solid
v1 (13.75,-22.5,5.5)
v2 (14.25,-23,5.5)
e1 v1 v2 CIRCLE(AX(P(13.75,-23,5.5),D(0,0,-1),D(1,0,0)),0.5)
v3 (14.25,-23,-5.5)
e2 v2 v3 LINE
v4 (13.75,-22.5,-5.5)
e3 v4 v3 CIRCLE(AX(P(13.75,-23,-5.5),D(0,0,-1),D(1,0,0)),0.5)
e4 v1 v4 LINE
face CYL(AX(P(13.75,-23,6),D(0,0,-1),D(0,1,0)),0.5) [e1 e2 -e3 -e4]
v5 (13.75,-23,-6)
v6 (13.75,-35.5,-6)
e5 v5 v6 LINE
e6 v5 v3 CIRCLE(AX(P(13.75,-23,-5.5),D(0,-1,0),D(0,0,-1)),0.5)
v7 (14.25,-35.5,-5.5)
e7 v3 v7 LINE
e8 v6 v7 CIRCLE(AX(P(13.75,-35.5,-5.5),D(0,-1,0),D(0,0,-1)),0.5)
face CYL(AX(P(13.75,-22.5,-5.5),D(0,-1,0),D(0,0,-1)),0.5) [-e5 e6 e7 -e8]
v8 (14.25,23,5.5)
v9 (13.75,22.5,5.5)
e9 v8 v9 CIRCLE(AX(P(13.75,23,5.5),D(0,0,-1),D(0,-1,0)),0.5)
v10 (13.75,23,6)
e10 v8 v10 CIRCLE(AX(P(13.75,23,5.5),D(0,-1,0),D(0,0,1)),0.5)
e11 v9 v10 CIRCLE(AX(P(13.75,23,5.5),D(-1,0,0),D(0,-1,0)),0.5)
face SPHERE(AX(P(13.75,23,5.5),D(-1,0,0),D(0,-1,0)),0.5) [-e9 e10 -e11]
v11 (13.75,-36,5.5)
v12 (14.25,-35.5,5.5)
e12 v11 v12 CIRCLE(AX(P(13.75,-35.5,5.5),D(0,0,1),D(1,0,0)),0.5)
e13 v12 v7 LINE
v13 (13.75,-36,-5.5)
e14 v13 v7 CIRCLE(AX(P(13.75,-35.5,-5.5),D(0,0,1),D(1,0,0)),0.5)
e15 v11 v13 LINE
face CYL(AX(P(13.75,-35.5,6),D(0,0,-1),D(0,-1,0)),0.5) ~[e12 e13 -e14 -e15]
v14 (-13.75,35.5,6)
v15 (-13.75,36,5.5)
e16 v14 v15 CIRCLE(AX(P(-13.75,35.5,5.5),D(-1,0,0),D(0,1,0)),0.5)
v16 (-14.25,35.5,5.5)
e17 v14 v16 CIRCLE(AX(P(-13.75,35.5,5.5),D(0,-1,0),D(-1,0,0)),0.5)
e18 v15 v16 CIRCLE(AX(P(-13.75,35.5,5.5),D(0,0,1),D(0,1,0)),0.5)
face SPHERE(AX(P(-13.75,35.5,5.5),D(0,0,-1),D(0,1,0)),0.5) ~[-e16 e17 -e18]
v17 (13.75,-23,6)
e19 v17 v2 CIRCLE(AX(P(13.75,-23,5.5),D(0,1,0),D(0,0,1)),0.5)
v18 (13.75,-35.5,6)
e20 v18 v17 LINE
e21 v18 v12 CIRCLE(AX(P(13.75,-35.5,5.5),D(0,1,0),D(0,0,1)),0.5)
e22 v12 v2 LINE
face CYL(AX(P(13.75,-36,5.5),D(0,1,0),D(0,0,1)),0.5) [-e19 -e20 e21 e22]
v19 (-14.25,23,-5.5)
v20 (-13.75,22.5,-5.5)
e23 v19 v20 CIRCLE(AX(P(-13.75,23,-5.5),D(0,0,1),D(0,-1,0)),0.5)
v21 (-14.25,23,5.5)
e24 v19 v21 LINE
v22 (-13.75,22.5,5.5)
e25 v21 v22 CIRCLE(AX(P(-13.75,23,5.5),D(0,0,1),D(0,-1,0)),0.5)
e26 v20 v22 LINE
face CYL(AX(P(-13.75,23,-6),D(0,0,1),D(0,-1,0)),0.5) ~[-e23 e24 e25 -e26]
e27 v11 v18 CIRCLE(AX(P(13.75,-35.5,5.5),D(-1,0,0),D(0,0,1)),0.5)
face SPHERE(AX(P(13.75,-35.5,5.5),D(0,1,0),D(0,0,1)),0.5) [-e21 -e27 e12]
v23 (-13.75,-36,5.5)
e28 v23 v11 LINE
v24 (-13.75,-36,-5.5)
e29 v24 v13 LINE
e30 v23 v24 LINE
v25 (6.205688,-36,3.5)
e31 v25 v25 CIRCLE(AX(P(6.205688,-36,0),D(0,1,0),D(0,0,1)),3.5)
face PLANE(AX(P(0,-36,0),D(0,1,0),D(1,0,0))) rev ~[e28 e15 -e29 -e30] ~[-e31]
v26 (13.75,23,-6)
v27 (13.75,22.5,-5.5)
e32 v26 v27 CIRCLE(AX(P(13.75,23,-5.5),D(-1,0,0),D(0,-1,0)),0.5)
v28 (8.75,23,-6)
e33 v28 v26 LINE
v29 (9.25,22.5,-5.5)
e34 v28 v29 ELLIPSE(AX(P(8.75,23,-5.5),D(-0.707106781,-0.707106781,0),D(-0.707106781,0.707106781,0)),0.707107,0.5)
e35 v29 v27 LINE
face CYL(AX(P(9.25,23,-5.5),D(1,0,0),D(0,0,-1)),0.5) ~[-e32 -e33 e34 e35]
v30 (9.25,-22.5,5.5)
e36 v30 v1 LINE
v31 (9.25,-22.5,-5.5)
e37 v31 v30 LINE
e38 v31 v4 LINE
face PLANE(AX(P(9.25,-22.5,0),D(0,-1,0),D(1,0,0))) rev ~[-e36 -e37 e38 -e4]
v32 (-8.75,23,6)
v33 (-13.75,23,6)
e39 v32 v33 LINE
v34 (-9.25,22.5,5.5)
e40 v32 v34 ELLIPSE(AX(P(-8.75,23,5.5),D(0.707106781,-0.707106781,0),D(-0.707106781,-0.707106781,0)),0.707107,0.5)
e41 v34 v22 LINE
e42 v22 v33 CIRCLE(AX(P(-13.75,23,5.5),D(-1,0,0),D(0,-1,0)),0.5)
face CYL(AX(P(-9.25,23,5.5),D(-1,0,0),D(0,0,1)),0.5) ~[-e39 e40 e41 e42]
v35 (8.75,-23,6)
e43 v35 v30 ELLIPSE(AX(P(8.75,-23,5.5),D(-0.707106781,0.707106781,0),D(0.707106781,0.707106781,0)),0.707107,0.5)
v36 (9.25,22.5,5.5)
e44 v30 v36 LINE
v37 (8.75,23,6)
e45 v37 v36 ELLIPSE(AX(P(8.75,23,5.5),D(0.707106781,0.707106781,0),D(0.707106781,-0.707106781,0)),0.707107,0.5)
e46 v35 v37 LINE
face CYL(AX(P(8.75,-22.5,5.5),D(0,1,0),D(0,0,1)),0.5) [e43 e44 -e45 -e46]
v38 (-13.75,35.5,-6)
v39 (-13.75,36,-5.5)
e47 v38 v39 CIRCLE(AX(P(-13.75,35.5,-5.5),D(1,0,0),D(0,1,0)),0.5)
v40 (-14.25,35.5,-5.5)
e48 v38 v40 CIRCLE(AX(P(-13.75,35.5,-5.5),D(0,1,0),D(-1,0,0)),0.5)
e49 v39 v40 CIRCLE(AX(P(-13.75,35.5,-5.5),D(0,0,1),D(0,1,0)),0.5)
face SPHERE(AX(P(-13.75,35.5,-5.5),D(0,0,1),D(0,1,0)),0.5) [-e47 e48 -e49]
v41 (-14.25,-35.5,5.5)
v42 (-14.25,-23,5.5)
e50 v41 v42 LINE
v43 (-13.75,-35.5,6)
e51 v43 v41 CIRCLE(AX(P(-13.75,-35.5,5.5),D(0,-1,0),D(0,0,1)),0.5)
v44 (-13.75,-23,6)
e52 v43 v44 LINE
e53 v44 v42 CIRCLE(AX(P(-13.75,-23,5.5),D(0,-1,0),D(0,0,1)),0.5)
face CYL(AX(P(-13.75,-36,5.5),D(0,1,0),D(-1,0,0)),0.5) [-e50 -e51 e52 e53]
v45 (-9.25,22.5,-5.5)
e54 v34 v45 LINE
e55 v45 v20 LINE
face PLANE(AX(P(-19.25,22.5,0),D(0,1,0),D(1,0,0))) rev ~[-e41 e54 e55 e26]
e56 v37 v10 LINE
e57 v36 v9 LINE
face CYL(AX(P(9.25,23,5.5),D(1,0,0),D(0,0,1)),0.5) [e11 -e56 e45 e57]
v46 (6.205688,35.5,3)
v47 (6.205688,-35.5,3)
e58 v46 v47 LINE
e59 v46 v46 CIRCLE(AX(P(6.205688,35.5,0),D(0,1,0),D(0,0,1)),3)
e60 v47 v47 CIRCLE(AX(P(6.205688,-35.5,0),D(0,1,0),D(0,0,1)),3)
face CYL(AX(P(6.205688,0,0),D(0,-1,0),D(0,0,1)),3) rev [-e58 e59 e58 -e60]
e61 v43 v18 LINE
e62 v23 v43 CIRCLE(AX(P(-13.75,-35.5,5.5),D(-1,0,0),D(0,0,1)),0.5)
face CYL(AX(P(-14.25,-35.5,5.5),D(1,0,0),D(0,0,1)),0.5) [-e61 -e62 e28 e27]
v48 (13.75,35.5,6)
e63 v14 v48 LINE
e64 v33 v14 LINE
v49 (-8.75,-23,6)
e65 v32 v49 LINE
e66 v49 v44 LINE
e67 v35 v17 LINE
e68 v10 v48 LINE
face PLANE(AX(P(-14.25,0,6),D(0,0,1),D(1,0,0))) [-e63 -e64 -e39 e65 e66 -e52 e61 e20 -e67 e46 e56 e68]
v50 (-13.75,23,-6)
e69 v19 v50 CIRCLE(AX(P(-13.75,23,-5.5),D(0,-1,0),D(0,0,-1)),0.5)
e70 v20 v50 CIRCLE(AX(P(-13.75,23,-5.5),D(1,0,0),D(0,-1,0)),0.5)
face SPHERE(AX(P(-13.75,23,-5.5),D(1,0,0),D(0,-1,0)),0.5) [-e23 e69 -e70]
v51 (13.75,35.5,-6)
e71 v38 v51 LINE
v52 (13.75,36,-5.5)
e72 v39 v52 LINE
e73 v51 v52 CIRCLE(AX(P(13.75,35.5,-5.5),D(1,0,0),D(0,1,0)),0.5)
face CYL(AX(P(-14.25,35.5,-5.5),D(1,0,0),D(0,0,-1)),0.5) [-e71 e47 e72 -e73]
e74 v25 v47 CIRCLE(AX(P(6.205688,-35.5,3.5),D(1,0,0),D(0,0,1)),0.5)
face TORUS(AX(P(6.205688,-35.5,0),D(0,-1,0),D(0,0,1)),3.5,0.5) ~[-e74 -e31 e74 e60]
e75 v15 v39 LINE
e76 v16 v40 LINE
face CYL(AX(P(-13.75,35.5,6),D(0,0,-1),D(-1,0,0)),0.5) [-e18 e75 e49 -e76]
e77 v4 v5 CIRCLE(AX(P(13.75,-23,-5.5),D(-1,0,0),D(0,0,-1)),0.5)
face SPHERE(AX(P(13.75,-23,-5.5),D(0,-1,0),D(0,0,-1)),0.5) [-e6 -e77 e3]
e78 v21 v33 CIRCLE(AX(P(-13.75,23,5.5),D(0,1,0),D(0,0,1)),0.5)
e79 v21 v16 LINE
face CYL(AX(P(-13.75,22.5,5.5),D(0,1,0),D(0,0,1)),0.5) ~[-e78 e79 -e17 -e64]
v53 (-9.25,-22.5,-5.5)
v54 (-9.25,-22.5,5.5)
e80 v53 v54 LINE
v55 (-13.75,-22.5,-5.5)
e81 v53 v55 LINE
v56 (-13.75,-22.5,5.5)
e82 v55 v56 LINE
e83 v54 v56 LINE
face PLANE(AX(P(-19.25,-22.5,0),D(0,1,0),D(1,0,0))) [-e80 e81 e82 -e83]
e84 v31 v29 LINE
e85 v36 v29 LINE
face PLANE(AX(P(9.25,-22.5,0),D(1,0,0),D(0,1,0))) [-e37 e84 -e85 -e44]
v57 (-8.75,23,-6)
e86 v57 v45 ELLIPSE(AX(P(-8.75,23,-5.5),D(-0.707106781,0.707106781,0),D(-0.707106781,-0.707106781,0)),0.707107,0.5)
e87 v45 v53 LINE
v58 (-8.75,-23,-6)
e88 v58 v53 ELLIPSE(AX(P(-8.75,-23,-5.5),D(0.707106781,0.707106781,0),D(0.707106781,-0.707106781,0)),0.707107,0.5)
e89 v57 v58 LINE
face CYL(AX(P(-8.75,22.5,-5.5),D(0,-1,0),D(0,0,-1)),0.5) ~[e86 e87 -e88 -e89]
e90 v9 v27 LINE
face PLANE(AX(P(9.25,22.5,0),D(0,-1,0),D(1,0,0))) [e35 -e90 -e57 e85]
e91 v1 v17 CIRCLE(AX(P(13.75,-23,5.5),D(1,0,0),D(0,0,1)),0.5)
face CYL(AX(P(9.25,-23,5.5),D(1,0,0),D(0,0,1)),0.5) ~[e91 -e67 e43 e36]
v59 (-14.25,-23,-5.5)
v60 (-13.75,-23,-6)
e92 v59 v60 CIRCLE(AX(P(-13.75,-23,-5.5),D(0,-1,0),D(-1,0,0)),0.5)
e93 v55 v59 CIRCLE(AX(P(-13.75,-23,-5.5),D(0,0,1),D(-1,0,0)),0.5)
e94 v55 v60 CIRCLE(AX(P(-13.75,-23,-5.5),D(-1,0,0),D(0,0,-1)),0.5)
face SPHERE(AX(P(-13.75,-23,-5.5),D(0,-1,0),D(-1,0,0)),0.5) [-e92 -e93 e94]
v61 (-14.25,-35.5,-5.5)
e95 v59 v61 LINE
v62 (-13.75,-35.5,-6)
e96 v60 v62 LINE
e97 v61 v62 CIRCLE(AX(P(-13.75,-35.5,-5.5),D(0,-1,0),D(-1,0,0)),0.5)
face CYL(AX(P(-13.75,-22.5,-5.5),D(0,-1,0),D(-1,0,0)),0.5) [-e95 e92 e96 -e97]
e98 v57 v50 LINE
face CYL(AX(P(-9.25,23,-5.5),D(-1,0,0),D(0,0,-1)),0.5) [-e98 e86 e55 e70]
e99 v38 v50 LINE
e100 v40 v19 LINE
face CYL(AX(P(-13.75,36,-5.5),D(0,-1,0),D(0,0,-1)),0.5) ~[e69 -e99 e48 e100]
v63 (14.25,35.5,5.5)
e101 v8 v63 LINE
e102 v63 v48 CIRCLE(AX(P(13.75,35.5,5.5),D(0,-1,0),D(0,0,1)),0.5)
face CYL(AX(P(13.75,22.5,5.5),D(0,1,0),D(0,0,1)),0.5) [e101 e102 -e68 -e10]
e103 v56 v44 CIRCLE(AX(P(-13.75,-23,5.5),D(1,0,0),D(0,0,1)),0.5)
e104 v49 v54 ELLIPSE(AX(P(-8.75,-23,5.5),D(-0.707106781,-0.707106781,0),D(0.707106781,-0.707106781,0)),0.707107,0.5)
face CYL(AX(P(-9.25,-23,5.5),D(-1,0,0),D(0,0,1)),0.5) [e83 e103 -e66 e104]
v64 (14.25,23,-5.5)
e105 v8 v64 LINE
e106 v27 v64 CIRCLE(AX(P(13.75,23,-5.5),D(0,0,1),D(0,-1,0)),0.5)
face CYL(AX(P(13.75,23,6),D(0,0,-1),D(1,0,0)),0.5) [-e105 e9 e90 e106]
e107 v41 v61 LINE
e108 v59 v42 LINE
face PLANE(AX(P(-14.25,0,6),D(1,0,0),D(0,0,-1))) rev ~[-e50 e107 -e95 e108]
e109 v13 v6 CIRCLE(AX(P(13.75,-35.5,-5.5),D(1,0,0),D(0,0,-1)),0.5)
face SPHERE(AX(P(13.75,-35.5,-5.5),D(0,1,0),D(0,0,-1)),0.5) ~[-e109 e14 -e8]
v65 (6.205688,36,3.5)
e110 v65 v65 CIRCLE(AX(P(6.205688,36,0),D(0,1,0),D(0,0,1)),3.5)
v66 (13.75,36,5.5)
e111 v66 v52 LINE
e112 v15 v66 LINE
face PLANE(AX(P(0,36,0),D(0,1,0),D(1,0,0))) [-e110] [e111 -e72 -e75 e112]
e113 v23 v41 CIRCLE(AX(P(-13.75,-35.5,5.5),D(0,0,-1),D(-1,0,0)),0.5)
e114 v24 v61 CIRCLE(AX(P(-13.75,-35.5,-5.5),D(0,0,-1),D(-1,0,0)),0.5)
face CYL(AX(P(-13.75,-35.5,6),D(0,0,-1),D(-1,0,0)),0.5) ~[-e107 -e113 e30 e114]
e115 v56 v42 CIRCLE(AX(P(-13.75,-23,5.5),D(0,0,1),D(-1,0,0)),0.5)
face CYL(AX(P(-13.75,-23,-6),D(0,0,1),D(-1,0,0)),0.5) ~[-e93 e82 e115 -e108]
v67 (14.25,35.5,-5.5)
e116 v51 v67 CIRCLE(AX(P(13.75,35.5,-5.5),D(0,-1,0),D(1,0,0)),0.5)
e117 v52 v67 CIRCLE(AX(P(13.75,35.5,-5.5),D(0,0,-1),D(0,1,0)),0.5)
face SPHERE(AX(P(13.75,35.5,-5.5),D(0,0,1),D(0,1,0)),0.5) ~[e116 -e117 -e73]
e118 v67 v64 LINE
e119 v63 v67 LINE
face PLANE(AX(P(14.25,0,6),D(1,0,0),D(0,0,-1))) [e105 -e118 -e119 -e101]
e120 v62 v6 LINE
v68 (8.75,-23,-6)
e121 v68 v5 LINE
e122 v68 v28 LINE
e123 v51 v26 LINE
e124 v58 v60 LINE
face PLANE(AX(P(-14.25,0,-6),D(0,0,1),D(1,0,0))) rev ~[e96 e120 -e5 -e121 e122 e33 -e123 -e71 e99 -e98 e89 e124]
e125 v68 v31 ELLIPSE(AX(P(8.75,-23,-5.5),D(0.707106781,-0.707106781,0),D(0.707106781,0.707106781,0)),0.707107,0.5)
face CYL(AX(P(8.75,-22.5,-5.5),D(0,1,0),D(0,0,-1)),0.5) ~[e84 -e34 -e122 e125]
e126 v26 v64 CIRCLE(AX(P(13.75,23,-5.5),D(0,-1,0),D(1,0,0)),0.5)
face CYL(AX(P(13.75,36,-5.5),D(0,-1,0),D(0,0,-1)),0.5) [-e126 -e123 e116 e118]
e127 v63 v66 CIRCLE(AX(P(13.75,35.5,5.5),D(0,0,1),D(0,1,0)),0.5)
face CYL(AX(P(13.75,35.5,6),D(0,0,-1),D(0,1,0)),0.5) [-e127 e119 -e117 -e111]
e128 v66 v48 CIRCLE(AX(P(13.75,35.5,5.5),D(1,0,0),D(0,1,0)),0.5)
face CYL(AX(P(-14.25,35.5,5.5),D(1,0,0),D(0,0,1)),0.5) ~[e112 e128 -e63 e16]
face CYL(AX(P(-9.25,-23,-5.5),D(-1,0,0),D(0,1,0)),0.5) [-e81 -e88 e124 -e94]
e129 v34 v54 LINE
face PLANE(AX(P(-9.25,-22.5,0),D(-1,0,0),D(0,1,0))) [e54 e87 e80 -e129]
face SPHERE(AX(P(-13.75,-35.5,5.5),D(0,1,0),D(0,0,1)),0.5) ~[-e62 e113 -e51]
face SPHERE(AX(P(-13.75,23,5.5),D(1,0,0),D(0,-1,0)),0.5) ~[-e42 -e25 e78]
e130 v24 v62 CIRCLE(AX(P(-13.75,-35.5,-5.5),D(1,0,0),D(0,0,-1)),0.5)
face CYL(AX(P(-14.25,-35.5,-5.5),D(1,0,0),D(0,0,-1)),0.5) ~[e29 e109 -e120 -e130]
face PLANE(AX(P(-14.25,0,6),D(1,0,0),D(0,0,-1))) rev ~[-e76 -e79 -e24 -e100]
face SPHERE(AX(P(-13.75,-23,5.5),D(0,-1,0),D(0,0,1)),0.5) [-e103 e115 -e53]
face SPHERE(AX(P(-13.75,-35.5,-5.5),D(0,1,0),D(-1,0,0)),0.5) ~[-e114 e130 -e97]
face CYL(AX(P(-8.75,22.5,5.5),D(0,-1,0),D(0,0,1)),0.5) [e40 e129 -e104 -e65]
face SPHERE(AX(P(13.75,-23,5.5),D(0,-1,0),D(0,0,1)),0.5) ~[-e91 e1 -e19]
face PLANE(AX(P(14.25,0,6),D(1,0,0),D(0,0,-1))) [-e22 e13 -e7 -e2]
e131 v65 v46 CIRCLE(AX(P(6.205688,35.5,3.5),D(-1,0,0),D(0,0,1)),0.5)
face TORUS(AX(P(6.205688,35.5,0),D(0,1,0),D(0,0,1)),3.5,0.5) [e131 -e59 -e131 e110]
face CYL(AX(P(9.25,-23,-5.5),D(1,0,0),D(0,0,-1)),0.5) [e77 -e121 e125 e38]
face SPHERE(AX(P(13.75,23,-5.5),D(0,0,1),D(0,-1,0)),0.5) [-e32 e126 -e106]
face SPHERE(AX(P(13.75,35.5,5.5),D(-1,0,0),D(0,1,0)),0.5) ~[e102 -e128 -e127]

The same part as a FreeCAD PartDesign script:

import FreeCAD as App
import Part
import Sketcher

V = App.Vector


def edges_at(feature, points):
    """Names of the edges that pass closest to the given points."""
    edges = feature.Shape.Edges
    near = lambda p: min(range(len(edges)), key=lambda i: edges[i].distToShape(Part.Vertex(*p))[0])
    return sorted({f"Edge{near(p) + 1}" for p in points})

doc = App.newDocument("Part")
params = doc.addObject("Spreadsheet::Sheet", "Params")
for row, (alias, value) in enumerate([
    ("sketch1_diameter", "6 mm"),
    ("sketch1_height", "12 mm"),
    ("sketch1_width", "28.5 mm"),
    ("pad1_length", "72 mm"),
    ("sketch2_width", "10 mm"),
    ("sketch2_height", "45 mm"),
    ("pocket1_length", "20 mm"),
    ("fillet_radius", "0.5 mm"),
], start=1):
    params.set(f"A{row}", alias)
    params.set(f"B{row}", "=" + value)
    params.setAlias(f"B{row}", alias)

body = doc.addObject("PartDesign::Body", "Body")

# Sketch on XZ plane
sketch1 = body.newObject("Sketcher::SketchObject", "Sketch")
sketch1.AttachmentSupport = (doc.getObject("XZ_Plane"), [""])
sketch1.MapMode = "FlatFace"
sketch1.addGeometry([
    Part.LineSegment(V(-14.2, -6, 0), V(-14.2, 6, 0)),  # 0
    Part.LineSegment(V(-14.2, 6, 0), V(14.2, 6, 0)),  # 1
    Part.LineSegment(V(14.2, 6, 0), V(14.2, -6, 0)),  # 2
    Part.LineSegment(V(14.2, -6, 0), V(-14.2, -6, 0)),  # 3
    Part.Circle(V(6.2, 0, 0), V(0, 0, 1), 3),  # 4
], False)
sketch1.addConstraint([
    Sketcher.Constraint("Coincident", 0, 2, 1, 1),
    Sketcher.Constraint("Coincident", 1, 2, 2, 1),
    Sketcher.Constraint("Coincident", 2, 2, 3, 1),
    Sketcher.Constraint("Coincident", 3, 2, 0, 1),
    Sketcher.Constraint("Vertical", 0),
    Sketcher.Constraint("Horizontal", 1),
    Sketcher.Constraint("Vertical", 2),
    Sketcher.Constraint("Horizontal", 3),
    Sketcher.Constraint("Symmetric", 0, 2, 2, 2, -1, 1),
    Sketcher.Constraint("PointOnObject", 4, 3, -1),
    Sketcher.Constraint("Diameter", 4, 6.0),
    Sketcher.Constraint("DistanceY", 0, 1, 0, 2, 12.0),
    Sketcher.Constraint("DistanceX", 1, 1, 1, 2, 28.5),
    Sketcher.Constraint("DistanceX", -1, 1, 4, 3, 6.205688),
])
sketch1.setExpression("Constraints[10]", "Params.sketch1_diameter")
sketch1.setExpression("Constraints[11]", "Params.sketch1_height")
sketch1.setExpression("Constraints[12]", "Params.sketch1_width")
pad1 = body.newObject("PartDesign::Pad", "Pad")
pad1.Profile = sketch1
pad1.setExpression("Length", "Params.pad1_length")
pad1.Midplane = True

# Sketch on XY plane
sketch2 = body.newObject("Sketcher::SketchObject", "Sketch001")
sketch2.AttachmentSupport = (doc.getObject("XY_Plane"), [""])
sketch2.MapMode = "FlatFace"
sketch2.addGeometry([
    Part.LineSegment(V(-19, 22, 0), V(-19, -22, 0)),  # 0
    Part.LineSegment(V(-19, -22, 0), V(-9, -22, 0)),  # 1
    Part.LineSegment(V(-9, -22, 0), V(-9, 22, 0)),  # 2
    Part.LineSegment(V(-9, 22, 0), V(-19, 22, 0)),  # 3
    Part.LineSegment(V(9, 22, 0), V(9, -22, 0)),  # 4
    Part.LineSegment(V(9, -22, 0), V(19, -22, 0)),  # 5
    Part.LineSegment(V(19, -22, 0), V(19, 22, 0)),  # 6
    Part.LineSegment(V(19, 22, 0), V(9, 22, 0)),  # 7
], False)
sketch2.addConstraint([
    Sketcher.Constraint("Coincident", 0, 2, 1, 1),
    Sketcher.Constraint("Coincident", 1, 2, 2, 1),
    Sketcher.Constraint("Coincident", 2, 2, 3, 1),
    Sketcher.Constraint("Coincident", 3, 2, 0, 1),
    Sketcher.Constraint("Coincident", 4, 2, 5, 1),
    Sketcher.Constraint("Coincident", 5, 2, 6, 1),
    Sketcher.Constraint("Coincident", 6, 2, 7, 1),
    Sketcher.Constraint("Coincident", 7, 2, 4, 1),
    Sketcher.Constraint("Vertical", 0),
    Sketcher.Constraint("Horizontal", 1),
    Sketcher.Constraint("Vertical", 2),
    Sketcher.Constraint("Horizontal", 3),
    Sketcher.Constraint("Vertical", 4),
    Sketcher.Constraint("Horizontal", 5),
    Sketcher.Constraint("Vertical", 6),
    Sketcher.Constraint("Horizontal", 7),
    Sketcher.Constraint("Symmetric", 2, 2, 4, 2, -1, 1),
    Sketcher.Constraint("Symmetric", 0, 2, 6, 2, -1, 1),
    Sketcher.Constraint("Horizontal", 1, 2, 4, 2),
    Sketcher.Constraint("DistanceX", 1, 1, 1, 2, 10.0),
    Sketcher.Constraint("DistanceY", 0, 2, 0, 1, 45.0),
    Sketcher.Constraint("DistanceX", 1, 2, 4, 2, 18.5),
])
sketch2.setExpression("Constraints[19]", "Params.sketch2_width")
sketch2.setExpression("Constraints[20]", "Params.sketch2_height")
pocket1 = body.newObject("PartDesign::Pocket", "Pocket")
pocket1.Profile = sketch2
pocket1.setExpression("Length", "Params.pocket1_length")
pocket1.Midplane = True
doc.recompute()

fillet = body.newObject("PartDesign::Fillet", "Fillet")
fillet.Base = (pocket1, edges_at(pocket1, [
    (-14.25, 36, 0),
    (6.206, -36, -3),
    (6.206, 36, -3),
    (0, 36, 6),
    (-14.25, -29.25, 6),
    (-11.75, 22.5, 6),
    (-9.25, 0, 6),
    (-11.75, -22.5, 6),
    (-14.25, -29.25, -6),
    (-9.25, 0, -6),
    (-14.25, -22.5, 0),
    (-11.75, -22.5, -6),
    (-11.75, 22.5, -6),
    (-14.25, 22.5, 0),
    (14.25, -29.25, 6),
    (11.75, 22.5, 6),
    (9.25, 0, 6),
    (11.75, -22.5, 6),
    (14.25, -29.25, -6),
    (11.75, -22.5, -6),
    (14.25, 36, 0),
    (14.25, -22.5, 0),
    (9.25, 0, -6),
    (14.25, 22.5, 0),
    (11.75, 22.5, -6),
    (0, -36, 6),
    (-14.25, -36, 0),
    (0, -36, -6),
    (14.25, -36, 0),
    (0, 36, -6),
    (14.25, 29.25, 6),
    (-14.25, 29.25, 6),
    (-14.25, 29.25, -6),
    (14.25, 29.25, -6),
]))
fillet.setExpression("Radius", "Params.fillet_radius")

doc.recompute()
